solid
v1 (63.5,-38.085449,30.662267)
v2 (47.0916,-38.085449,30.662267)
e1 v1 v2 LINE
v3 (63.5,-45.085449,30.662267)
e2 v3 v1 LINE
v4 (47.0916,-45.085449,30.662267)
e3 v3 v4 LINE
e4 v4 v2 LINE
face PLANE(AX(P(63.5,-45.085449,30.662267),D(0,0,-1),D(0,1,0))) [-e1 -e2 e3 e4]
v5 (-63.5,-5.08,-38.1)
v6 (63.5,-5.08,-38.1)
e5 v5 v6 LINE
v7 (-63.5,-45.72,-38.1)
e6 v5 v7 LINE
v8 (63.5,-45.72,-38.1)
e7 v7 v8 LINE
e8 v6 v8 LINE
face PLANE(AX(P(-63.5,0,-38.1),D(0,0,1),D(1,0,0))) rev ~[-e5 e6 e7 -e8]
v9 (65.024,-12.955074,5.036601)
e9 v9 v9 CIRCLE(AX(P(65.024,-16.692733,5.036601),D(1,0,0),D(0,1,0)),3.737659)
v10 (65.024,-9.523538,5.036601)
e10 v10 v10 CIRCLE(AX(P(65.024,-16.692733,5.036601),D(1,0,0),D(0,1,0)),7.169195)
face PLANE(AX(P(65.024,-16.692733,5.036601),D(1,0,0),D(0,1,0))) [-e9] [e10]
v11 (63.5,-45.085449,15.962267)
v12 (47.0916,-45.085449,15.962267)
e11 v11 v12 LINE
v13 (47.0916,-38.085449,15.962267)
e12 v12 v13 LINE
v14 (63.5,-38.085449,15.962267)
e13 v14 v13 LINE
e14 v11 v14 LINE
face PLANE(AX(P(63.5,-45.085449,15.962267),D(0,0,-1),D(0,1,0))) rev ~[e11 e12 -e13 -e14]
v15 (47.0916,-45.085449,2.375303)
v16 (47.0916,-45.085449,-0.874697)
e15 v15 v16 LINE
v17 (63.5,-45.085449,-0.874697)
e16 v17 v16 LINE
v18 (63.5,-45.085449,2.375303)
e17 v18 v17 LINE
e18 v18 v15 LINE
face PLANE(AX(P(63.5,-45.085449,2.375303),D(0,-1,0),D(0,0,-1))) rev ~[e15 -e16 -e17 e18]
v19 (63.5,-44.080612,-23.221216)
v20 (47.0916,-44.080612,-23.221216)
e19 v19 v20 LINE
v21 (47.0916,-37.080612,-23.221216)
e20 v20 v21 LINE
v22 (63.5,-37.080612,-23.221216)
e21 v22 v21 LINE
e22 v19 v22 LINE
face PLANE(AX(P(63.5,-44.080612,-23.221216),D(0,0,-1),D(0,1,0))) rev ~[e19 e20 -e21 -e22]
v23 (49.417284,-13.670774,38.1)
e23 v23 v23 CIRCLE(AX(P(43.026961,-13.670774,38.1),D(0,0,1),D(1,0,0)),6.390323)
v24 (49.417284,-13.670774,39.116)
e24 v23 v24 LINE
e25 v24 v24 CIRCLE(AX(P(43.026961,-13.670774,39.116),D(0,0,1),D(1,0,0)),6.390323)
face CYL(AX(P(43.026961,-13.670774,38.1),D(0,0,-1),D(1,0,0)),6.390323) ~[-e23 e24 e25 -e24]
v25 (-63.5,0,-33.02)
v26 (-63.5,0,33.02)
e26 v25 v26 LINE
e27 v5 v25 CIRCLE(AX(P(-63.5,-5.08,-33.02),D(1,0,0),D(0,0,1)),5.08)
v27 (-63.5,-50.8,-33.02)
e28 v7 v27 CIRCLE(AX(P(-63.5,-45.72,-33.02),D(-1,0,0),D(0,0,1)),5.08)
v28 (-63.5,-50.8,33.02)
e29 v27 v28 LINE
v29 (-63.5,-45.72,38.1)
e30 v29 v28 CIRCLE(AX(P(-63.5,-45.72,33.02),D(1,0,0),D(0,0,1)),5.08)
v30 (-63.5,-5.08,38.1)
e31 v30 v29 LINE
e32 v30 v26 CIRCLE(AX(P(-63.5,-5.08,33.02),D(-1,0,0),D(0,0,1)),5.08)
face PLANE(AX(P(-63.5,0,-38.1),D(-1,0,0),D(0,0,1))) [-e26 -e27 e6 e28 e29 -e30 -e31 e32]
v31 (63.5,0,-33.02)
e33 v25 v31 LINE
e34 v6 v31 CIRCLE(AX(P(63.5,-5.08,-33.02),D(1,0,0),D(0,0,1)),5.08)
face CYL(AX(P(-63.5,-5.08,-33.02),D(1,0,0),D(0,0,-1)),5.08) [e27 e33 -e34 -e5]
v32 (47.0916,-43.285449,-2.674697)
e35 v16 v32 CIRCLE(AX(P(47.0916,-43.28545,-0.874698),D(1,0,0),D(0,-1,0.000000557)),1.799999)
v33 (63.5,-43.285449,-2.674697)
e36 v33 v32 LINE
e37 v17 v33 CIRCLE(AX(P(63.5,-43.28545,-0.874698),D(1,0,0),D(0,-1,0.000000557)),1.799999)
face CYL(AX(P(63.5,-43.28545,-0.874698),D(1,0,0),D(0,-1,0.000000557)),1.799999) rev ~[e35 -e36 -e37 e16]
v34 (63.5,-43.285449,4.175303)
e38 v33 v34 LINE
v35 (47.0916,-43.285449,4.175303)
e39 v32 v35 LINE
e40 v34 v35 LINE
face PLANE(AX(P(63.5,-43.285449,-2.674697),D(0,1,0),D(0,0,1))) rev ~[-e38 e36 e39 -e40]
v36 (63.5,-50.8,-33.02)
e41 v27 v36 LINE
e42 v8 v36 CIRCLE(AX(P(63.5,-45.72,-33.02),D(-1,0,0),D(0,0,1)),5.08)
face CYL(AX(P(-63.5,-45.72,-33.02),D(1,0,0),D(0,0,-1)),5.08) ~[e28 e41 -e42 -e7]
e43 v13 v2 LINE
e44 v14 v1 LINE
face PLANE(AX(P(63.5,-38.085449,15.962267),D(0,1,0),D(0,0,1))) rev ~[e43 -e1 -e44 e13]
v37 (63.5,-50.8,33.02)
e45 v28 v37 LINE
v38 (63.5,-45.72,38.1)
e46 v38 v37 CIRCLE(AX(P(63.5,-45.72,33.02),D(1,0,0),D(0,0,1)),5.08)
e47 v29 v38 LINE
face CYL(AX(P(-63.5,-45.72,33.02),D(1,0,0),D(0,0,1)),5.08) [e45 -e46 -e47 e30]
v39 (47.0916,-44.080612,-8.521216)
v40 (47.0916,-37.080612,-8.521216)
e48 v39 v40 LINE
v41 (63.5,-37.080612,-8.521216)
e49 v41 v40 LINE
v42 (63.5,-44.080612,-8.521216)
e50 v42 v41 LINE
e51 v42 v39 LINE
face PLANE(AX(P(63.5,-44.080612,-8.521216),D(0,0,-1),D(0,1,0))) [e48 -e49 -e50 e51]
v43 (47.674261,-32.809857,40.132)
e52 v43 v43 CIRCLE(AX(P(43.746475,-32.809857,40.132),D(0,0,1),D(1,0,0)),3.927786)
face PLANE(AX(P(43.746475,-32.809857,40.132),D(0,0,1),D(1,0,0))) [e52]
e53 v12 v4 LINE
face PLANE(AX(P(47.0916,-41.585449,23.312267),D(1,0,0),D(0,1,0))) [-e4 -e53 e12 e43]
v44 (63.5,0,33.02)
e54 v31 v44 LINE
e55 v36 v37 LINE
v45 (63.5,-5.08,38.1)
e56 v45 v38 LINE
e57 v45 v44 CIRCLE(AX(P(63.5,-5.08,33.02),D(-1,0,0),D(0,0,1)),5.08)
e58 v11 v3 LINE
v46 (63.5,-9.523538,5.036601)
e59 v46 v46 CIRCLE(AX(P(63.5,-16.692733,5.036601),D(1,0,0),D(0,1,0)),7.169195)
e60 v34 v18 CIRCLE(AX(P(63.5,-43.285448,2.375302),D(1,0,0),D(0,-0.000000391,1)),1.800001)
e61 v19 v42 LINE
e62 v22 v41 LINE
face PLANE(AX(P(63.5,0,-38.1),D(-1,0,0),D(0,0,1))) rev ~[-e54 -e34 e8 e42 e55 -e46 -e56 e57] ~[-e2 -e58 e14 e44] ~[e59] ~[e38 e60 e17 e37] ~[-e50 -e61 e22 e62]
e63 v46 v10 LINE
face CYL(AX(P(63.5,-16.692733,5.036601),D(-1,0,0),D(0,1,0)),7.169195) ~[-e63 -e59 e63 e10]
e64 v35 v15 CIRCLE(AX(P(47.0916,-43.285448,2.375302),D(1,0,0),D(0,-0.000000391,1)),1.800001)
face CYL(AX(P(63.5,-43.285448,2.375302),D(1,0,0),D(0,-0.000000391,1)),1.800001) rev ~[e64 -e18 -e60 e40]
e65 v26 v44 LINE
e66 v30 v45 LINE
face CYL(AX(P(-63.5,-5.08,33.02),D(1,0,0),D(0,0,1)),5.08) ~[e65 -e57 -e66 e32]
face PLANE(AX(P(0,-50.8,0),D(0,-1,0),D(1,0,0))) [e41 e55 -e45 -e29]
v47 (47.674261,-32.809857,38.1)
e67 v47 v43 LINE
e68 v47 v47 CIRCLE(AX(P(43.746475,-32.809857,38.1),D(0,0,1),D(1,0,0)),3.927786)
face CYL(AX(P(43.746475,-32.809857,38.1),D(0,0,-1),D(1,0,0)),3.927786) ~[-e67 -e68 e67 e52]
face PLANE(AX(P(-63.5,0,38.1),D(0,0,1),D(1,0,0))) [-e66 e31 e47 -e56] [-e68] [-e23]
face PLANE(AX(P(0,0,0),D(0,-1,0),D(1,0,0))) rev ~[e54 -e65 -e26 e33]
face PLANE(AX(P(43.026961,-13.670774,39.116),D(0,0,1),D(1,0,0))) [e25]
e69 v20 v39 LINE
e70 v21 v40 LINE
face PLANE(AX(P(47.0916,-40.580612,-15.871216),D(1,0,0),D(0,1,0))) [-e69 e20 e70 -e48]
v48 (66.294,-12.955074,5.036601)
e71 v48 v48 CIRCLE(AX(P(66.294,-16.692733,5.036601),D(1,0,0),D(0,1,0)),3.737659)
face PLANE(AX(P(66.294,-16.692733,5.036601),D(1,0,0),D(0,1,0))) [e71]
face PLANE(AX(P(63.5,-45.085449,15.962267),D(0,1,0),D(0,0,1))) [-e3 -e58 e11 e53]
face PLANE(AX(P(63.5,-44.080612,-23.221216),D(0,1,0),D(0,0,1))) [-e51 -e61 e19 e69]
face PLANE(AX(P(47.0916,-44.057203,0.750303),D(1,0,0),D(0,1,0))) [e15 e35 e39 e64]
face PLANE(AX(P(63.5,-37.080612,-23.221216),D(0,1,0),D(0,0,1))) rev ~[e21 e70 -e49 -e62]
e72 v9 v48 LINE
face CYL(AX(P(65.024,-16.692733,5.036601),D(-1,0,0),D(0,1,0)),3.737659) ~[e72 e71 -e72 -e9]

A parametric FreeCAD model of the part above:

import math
import FreeCAD as App
import Part
import Sketcher

V = App.Vector
Q = App.Units.Quantity


def edges_at(feature, points):
    """Names of the edges that pass closest to the given points."""
    edges = feature.Shape.Edges
    near = lambda p: min(range(len(edges)), key=lambda i: edges[i].distToShape(Part.Vertex(*p))[0])
    return sorted({f"Edge{near(p) + 1}" for p in points})

doc = App.newDocument("Part")
body = doc.addObject("PartDesign::Body", "Body")

# Sketch on XZ plane
sketch1 = body.newObject("Sketcher::SketchObject", "Sketch")
sketch1.AttachmentSupport = (doc.getObject("XZ_Plane"), [""])
sketch1.MapMode = "FlatFace"
sketch1.addGeometry(Part.LineSegment(V(-64, 38, 0), V(-64, -38, 0)), False)
sketch1.addGeometry(Part.LineSegment(V(-64, -38, 0), V(64, -38, 0)), False)
sketch1.addGeometry(Part.LineSegment(V(64, -38, 0), V(64, 38, 0)), False)
sketch1.addGeometry(Part.LineSegment(V(64, 38, 0), V(-64, 38, 0)), False)
sketch1.addConstraint(Sketcher.Constraint("Coincident", 0, 2, 1, 1))
sketch1.addConstraint(Sketcher.Constraint("Coincident", 1, 2, 2, 1))
sketch1.addConstraint(Sketcher.Constraint("Coincident", 2, 2, 3, 1))
sketch1.addConstraint(Sketcher.Constraint("Coincident", 3, 2, 0, 1))
sketch1.addConstraint(Sketcher.Constraint("Vertical", 0))
sketch1.addConstraint(Sketcher.Constraint("Horizontal", 1))
sketch1.addConstraint(Sketcher.Constraint("Vertical", 2))
sketch1.addConstraint(Sketcher.Constraint("Horizontal", 3))
sketch1.addConstraint(Sketcher.Constraint("Symmetric", 0, 2, 2, 2, -1, 1))
sketch1.addConstraint(Sketcher.Constraint("DistanceX", 1, 1, 1, 2, Q("5 in")))
sketch1.addConstraint(Sketcher.Constraint("DistanceY", 0, 2, 0, 1, Q("3 in")))
pad1 = body.newObject("PartDesign::Pad", "Pad")
pad1.Profile = sketch1
pad1.Length = Q("2 in")
doc.recompute()

fillet = body.newObject("PartDesign::Fillet", "Fillet")
fillet.Base = (pad1, edges_at(pad1, [
    (0, -50.8, 38.1),
    (0, -50.8, -38.1),
    (0, 0, 38.1),
    (0, 0, -38.1),
]))
fillet.Radius = Q("0.2 in")

# Sketch on YZ plane
sketch2 = body.newObject("Sketcher::SketchObject", "Sketch001")
sketch2.AttachmentSupport = (doc.getObject("YZ_Plane"), [""])
sketch2.MapMode = "FlatFace"
sketch2.AttachmentOffset = App.Placement(V(0, 0, 2.5 * 25.4), App.Rotation())
sketch2.addGeometry(Part.LineSegment(V(-45, 31, 0), V(-45, 16, 0)), False)
sketch2.addGeometry(Part.LineSegment(V(-45, 16, 0), V(-38, 16, 0)), False)
sketch2.addGeometry(Part.LineSegment(V(-38, 16, 0), V(-38, 31, 0)), False)
sketch2.addGeometry(Part.LineSegment(V(-38, 31, 0), V(-45, 31, 0)), False)
sketch2.addConstraint(Sketcher.Constraint("Coincident", 0, 2, 1, 1))
sketch2.addConstraint(Sketcher.Constraint("Coincident", 1, 2, 2, 1))
sketch2.addConstraint(Sketcher.Constraint("Coincident", 2, 2, 3, 1))
sketch2.addConstraint(Sketcher.Constraint("Coincident", 3, 2, 0, 1))
sketch2.addConstraint(Sketcher.Constraint("Vertical", 0))
sketch2.addConstraint(Sketcher.Constraint("Horizontal", 1))
sketch2.addConstraint(Sketcher.Constraint("Vertical", 2))
sketch2.addConstraint(Sketcher.Constraint("Horizontal", 3))
sketch2.addConstraint(Sketcher.Constraint("DistanceX", 1, 1, 1, 2, 7.0))
sketch2.addConstraint(Sketcher.Constraint("DistanceY", 0, 2, 0, 1, 14.7))
sketch2.addConstraint(Sketcher.Constraint("DistanceX", 0, 2, -1, 1, 45.085449))
sketch2.addConstraint(Sketcher.Constraint("DistanceY", -1, 1, 0, 2, 15.962267))
pocket1 = body.newObject("PartDesign::Pocket", "Pocket")
pocket1.Profile = sketch2
pocket1.Length = Q("0.646 in")

# Sketch on YZ plane
sketch3 = body.newObject("Sketcher::SketchObject", "Sketch002")
sketch3.AttachmentSupport = (doc.getObject("YZ_Plane"), [""])
sketch3.MapMode = "FlatFace"
sketch3.AttachmentOffset = App.Placement(V(0, 0, 2.5 * 25.4), App.Rotation())
sketch3.addGeometry(Part.LineSegment(V(-44, -9, 0), V(-44, -23, 0)), False)
sketch3.addGeometry(Part.LineSegment(V(-44, -23, 0), V(-37, -23, 0)), False)
sketch3.addGeometry(Part.LineSegment(V(-37, -23, 0), V(-37, -9, 0)), False)
sketch3.addGeometry(Part.LineSegment(V(-37, -9, 0), V(-44, -9, 0)), False)
sketch3.addConstraint(Sketcher.Constraint("Coincident", 0, 2, 1, 1))
sketch3.addConstraint(Sketcher.Constraint("Coincident", 1, 2, 2, 1))
sketch3.addConstraint(Sketcher.Constraint("Coincident", 2, 2, 3, 1))
sketch3.addConstraint(Sketcher.Constraint("Coincident", 3, 2, 0, 1))
sketch3.addConstraint(Sketcher.Constraint("Vertical", 0))
sketch3.addConstraint(Sketcher.Constraint("Horizontal", 1))
sketch3.addConstraint(Sketcher.Constraint("Vertical", 2))
sketch3.addConstraint(Sketcher.Constraint("Horizontal", 3))
sketch3.addConstraint(Sketcher.Constraint("DistanceX", 1, 1, 1, 2, 7.0))
sketch3.addConstraint(Sketcher.Constraint("DistanceY", 0, 2, 0, 1, 14.7))
sketch3.addConstraint(Sketcher.Constraint("DistanceX", 0, 2, -1, 1, 44.080612))
sketch3.addConstraint(Sketcher.Constraint("DistanceY", 0, 2, -1, 1, 23.221216))
pocket2 = body.newObject("PartDesign::Pocket", "Pocket001")
pocket2.Profile = sketch3
pocket2.Length = Q("0.646 in")

# Sketch on YZ plane
sketch4 = body.newObject("Sketcher::SketchObject", "Sketch003")
sketch4.AttachmentSupport = (doc.getObject("YZ_Plane"), [""])
sketch4.MapMode = "FlatFace"
sketch4.AttachmentOffset = App.Placement(V(0, 0, 2.5 * 25.4), App.Rotation())
sketch4.addGeometry(Part.ArcOfCircle(Part.Circle(V(-43.3, 2.4, 0), V(0, 0, 1), 1.8), math.radians(90), math.radians(180)), False)
sketch4.addGeometry(Part.LineSegment(V(-45.1, 2.4, 0), V(-45.1, -0.9, 0)), False)
sketch4.addGeometry(Part.ArcOfCircle(Part.Circle(V(-43.3, -0.9, 0), V(0, 0, 1), 1.8), math.radians(180), math.radians(270)), False)
sketch4.addGeometry(Part.LineSegment(V(-43.3, -2.7, 0), V(-43.3, 4.2, 0)), False)
sketch4.addConstraint(Sketcher.Constraint("Tangent", 0, 2, 1, 1))
sketch4.addConstraint(Sketcher.Constraint("Tangent", 1, 2, 2, 1))
sketch4.addConstraint(Sketcher.Constraint("Coincident", 2, 2, 3, 1))
sketch4.addConstraint(Sketcher.Constraint("Coincident", 3, 2, 0, 1))
sketch4.addConstraint(Sketcher.Constraint("Vertical", 1))
sketch4.addConstraint(Sketcher.Constraint("Vertical", 3))
sketch4.addConstraint(Sketcher.Constraint("Equal", 0, 2))
sketch4.addConstraint(Sketcher.Constraint("Vertical", 0, 3, 2, 2))
sketch4.addConstraint(Sketcher.Constraint("Radius", 0, 1.800001))
sketch4.addConstraint(Sketcher.Constraint("DistanceY", 1, 2, 1, 1, 3.25))
sketch4.addConstraint(Sketcher.Constraint("DistanceY", 2, 3, -1, 1, 0.874698))
sketch4.addConstraint(Sketcher.Constraint("DistanceX", 0, 3, -1, 1, 43.285448))
pocket3 = body.newObject("PartDesign::Pocket", "Pocket002")
pocket3.Profile = sketch4
pocket3.Length = Q("0.646 in")

# Sketch on XY plane
sketch5 = body.newObject("Sketcher::SketchObject", "Sketch004")
sketch5.AttachmentSupport = (doc.getObject("XY_Plane"), [""])
sketch5.MapMode = "FlatFace"
sketch5.AttachmentOffset = App.Placement(V(0, 0, 1.5 * 25.4), App.Rotation())
sketch5.addGeometry(Part.Circle(V(43, -14, 0), V(0, 0, 1), 6), False)
sketch5.addConstraint(Sketcher.Constraint("Diameter", 0, 12.780646))
sketch5.addConstraint(Sketcher.Constraint("DistanceX", -1, 1, 0, 3, 43.026961))
sketch5.addConstraint(Sketcher.Constraint("DistanceY", 0, 3, -1, 1, 13.670774))
pad2 = body.newObject("PartDesign::Pad", "Pad001")
pad2.Profile = sketch5
pad2.Length = Q("0.04 in")

# Sketch on YZ plane
sketch6 = body.newObject("Sketcher::SketchObject", "Sketch005")
sketch6.AttachmentSupport = (doc.getObject("YZ_Plane"), [""])
sketch6.MapMode = "FlatFace"
sketch6.AttachmentOffset = App.Placement(V(0, 0, 2.5 * 25.4), App.Rotation())
sketch6.addGeometry(Part.Circle(V(-17, 5, 0), V(0, 0, 1), 7), False)
sketch6.addConstraint(Sketcher.Constraint("Diameter", 0, 14.33839))
sketch6.addConstraint(Sketcher.Constraint("DistanceY", -1, 1, 0, 3, 5.036601))
sketch6.addConstraint(Sketcher.Constraint("DistanceX", 0, 3, -1, 1, 16.692733))
pad3 = body.newObject("PartDesign::Pad", "Pad002")
pad3.Profile = sketch6
pad3.Length = Q("0.06 in")

# Sketch on YZ plane
sketch7 = body.newObject("Sketcher::SketchObject", "Sketch006")
sketch7.AttachmentSupport = (doc.getObject("YZ_Plane"), [""])
sketch7.MapMode = "FlatFace"
sketch7.AttachmentOffset = App.Placement(V(0, 0, 2.56 * 25.4), App.Rotation())
sketch7.addGeometry(Part.Circle(V(-16.7, 5, 0), V(0, 0, 1), 3.7), False)
sketch7.addConstraint(Sketcher.Constraint("Diameter", 0, 7.475318))
sketch7.addConstraint(Sketcher.Constraint("DistanceY", -1, 1, 0, 3, 5.036601))
sketch7.addConstraint(Sketcher.Constraint("DistanceX", 0, 3, -1, 1, 16.692733))
pad4 = body.newObject("PartDesign::Pad", "Pad003")
pad4.Profile = sketch7
pad4.Length = Q("0.05 in")

# Sketch on XY plane
sketch8 = body.newObject("Sketcher::SketchObject", "Sketch007")
sketch8.AttachmentSupport = (doc.getObject("XY_Plane"), [""])
sketch8.MapMode = "FlatFace"
sketch8.AttachmentOffset = App.Placement(V(0, 0, 1.5 * 25.4), App.Rotation())
sketch8.addGeometry(Part.Circle(V(43.7, -32.8, 0), V(0, 0, 1), 3.9), False)
sketch8.addConstraint(Sketcher.Constraint("Diameter", 0, 7.855572))
sketch8.addConstraint(Sketcher.Constraint("DistanceX", -1, 1, 0, 3, 43.746475))
sketch8.addConstraint(Sketcher.Constraint("DistanceY", 0, 3, -1, 1, 32.809857))
pad5 = body.newObject("PartDesign::Pad", "Pad004")
pad5.Profile = sketch8
pad5.Length = Q("0.08 in")

doc.recompute()
